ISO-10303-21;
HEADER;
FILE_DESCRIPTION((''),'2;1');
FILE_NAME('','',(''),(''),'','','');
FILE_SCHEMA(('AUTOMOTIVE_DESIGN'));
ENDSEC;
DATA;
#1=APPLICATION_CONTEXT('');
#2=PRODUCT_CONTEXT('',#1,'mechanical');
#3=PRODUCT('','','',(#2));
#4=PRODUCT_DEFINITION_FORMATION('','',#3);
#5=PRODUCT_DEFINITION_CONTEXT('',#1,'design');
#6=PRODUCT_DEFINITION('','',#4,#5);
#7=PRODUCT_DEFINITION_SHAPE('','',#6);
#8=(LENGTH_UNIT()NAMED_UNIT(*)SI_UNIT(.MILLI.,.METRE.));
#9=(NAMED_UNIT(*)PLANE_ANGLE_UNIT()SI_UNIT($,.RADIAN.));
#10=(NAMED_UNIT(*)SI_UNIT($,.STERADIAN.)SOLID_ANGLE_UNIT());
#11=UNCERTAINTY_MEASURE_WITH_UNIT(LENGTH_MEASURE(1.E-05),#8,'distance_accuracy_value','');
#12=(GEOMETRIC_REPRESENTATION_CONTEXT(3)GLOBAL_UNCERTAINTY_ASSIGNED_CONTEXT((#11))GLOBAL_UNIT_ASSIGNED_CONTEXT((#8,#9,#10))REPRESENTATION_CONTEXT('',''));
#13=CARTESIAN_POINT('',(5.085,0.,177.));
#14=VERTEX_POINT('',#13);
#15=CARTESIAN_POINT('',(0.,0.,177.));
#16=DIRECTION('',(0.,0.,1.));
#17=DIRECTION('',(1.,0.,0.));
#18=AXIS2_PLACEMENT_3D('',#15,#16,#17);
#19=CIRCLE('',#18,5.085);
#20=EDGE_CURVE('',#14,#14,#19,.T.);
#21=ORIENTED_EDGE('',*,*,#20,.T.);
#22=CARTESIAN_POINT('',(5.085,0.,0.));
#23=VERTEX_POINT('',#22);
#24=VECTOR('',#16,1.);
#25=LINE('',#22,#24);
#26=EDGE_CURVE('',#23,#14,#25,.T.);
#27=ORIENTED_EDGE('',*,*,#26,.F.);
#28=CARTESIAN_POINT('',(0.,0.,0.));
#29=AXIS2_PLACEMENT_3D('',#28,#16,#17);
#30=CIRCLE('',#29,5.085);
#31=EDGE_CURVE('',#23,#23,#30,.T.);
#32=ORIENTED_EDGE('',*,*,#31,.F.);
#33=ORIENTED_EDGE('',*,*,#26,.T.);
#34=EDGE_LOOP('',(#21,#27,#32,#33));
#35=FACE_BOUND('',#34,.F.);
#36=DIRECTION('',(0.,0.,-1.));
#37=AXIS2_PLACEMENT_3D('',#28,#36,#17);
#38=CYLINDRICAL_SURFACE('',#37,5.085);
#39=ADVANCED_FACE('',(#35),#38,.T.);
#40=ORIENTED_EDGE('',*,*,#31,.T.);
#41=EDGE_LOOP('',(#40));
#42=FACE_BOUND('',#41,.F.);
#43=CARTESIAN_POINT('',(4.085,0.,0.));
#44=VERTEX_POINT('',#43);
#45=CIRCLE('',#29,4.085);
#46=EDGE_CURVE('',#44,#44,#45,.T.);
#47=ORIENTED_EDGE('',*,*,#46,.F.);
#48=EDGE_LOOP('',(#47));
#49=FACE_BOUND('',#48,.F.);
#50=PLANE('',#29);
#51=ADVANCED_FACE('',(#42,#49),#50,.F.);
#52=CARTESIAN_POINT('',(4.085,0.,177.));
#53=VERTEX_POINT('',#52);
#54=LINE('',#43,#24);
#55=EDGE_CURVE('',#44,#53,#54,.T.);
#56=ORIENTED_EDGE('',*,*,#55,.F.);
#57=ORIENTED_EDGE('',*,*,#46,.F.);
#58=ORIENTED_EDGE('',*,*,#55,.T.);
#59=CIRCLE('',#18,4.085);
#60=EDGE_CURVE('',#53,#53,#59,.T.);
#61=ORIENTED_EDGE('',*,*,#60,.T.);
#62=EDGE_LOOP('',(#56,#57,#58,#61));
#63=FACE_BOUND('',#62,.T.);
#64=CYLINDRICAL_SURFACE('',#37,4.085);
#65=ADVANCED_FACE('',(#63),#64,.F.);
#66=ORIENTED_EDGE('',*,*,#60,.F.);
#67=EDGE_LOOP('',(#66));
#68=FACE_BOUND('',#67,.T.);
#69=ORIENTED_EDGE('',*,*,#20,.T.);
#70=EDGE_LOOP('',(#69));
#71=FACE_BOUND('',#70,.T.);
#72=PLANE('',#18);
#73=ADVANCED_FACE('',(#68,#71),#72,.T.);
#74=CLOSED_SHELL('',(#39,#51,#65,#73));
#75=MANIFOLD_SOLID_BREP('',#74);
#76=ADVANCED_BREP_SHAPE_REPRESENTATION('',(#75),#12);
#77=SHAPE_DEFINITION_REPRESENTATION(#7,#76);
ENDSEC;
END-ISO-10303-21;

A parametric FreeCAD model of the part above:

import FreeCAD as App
import Part
import Sketcher

V = App.Vector
Q = App.Units.Quantity

doc = App.newDocument("Part")
body = doc.addObject("PartDesign::Body", "Body")

sketch1 = body.newObject("Sketcher::SketchObject", "Sketch")
sketch1.AttachmentSupport = (doc.getObject("XY_Plane"), [""])
sketch1.MapMode = "FlatFace"
sketch1.addGeometry(Part.Circle(V(0, 0, 0), V(0, 0, 1), 5.1), False)
sketch1.addGeometry(Part.Circle(V(0, 0, 0), V(0, 0, 1), 4.1), False)
sketch1.addConstraint(Sketcher.Constraint("Coincident", 0, 3, -1, 1))
sketch1.addConstraint(Sketcher.Constraint("Coincident", 1, 3, -1, 1))
sketch1.addConstraint(Sketcher.Constraint("Diameter", 0, Q("10.17 mm")))
sketch1.addConstraint(Sketcher.Constraint("Diameter", 1, Q("8.17 mm")))
pad1 = body.newObject("PartDesign::Pad", "Pad")
pad1.Profile = sketch1
pad1.Length = 177

doc.recompute()
